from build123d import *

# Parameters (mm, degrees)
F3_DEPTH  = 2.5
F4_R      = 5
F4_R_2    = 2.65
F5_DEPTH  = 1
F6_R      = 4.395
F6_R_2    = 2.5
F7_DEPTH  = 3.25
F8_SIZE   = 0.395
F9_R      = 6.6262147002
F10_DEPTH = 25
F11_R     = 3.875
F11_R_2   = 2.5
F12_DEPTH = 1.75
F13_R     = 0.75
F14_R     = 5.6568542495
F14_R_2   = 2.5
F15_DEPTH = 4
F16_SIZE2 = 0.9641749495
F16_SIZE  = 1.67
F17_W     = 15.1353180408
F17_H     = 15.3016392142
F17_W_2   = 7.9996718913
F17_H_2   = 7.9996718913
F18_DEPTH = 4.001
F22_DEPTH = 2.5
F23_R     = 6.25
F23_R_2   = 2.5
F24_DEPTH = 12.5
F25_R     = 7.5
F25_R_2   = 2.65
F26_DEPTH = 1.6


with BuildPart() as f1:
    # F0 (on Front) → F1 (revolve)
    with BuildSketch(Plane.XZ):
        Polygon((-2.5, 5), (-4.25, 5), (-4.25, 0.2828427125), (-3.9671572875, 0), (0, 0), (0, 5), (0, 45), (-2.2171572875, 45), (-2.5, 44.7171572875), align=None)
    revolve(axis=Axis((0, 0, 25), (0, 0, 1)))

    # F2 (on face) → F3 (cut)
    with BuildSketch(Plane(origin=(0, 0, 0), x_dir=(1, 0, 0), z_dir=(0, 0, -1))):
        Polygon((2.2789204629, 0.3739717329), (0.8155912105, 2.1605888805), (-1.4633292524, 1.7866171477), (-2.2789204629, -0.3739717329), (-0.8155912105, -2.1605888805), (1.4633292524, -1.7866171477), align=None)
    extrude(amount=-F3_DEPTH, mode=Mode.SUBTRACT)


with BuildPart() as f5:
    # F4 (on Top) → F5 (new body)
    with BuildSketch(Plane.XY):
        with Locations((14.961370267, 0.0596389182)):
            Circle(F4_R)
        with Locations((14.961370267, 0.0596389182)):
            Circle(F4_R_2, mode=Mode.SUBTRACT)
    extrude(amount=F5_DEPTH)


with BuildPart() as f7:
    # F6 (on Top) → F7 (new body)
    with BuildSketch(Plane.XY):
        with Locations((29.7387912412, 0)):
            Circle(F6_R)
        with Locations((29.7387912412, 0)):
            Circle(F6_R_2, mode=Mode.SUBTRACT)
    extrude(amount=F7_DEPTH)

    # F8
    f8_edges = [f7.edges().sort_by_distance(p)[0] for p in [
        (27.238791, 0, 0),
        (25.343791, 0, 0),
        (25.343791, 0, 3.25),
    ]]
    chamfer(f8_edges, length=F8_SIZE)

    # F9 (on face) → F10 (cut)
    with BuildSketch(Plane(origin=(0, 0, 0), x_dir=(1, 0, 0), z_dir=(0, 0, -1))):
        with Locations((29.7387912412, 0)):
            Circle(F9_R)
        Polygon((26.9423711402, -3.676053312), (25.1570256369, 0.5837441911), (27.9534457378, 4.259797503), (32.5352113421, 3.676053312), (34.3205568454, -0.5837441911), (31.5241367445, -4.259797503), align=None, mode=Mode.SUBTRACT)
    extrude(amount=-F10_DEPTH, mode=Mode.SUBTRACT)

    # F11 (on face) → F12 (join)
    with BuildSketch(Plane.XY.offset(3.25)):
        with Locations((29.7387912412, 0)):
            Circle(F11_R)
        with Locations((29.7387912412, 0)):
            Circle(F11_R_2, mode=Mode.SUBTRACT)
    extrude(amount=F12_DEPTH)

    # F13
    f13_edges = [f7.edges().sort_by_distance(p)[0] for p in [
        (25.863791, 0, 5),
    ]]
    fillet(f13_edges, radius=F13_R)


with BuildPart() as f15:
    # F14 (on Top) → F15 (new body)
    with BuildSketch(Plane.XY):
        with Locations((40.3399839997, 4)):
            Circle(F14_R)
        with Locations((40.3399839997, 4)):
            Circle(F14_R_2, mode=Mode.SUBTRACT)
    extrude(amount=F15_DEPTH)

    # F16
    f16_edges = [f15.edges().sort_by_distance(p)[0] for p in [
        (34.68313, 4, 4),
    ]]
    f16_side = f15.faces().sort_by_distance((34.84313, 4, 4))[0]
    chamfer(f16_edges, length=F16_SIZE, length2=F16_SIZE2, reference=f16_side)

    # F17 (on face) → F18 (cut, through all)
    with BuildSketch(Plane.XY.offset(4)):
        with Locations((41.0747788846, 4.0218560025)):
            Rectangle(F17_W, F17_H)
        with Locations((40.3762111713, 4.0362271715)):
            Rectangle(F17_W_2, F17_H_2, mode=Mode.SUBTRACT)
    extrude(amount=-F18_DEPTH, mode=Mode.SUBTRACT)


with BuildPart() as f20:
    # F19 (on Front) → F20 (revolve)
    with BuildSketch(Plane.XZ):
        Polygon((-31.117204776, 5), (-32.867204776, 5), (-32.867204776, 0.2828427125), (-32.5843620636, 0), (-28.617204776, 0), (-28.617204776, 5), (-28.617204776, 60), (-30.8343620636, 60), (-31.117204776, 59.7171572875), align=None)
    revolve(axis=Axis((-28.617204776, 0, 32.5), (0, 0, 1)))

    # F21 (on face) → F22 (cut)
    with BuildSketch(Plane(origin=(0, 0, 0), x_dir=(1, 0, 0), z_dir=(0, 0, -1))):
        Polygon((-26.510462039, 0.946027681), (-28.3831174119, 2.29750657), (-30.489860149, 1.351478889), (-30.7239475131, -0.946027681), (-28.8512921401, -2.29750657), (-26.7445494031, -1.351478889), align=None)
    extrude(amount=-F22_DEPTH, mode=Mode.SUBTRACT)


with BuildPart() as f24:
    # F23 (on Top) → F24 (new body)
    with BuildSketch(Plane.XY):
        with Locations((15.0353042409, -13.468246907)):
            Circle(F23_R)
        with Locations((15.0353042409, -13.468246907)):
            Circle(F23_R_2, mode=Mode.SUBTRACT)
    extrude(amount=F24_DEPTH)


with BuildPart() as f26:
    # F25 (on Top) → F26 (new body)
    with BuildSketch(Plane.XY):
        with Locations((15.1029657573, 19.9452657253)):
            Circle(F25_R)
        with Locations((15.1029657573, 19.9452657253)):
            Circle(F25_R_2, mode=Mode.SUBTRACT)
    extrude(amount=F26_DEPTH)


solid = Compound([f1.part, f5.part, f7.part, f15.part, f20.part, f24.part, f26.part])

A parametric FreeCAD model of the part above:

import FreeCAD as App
import Part
import Sketcher
from FreeCAD import Vector
Q = App.Units.Quantity


def edges_at(feature, points):
    """Names of the edges that pass closest to the given points."""
    edges = feature.Shape.Edges
    near = lambda p: min(range(len(edges)), key=lambda i: edges[i].distToShape(Part.Vertex(*p))[0])
    return sorted({f"Edge{near(p) + 1}" for p in points})


def add_polygon(sketch, points):
    """Adds a closed chain of lines whose ends are joined by coincident constraints."""
    first, n = sketch.GeometryCount, len(points)
    for a, b in zip(points, points[1:] + points[:1]):
        sketch.addGeometry(Part.LineSegment(App.Vector(*a, 0), App.Vector(*b, 0)), False)
    for i in range(n):
        sketch.addConstraint(Sketcher.Constraint("Coincident", first + i, 2, first + (i + 1) % n, 1))

doc = App.newDocument("Part")
body = doc.addObject("PartDesign::Body", "Body")

# Sketch on XZ plane
sketch1 = body.newObject("Sketcher::SketchObject", "Sketch")
sketch1.AttachmentSupport = (doc.getObject("XZ_Plane"), [""])
sketch1.MapMode = "FlatFace"
add_polygon(sketch1, [(-2.5, 5), (-4.25, 5), (-4.25, 0.28), (-3.97, 0), (0, 0), (0, 45), (-2.22, 45), (-2.5, 44.72)])  # lines 0-7
sketch1.addConstraint(Sketcher.Constraint("Horizontal", 0))
sketch1.addConstraint(Sketcher.Constraint("Vertical", 1))
sketch1.addConstraint(Sketcher.Constraint("Horizontal", 3))
sketch1.addConstraint(Sketcher.Constraint("Vertical", 4))
sketch1.addConstraint(Sketcher.Constraint("Horizontal", 5))
sketch1.addConstraint(Sketcher.Constraint("Vertical", 7))
sketch1.addConstraint(Sketcher.Constraint("Coincident", 3, 2, -1, 1))
sketch1.addConstraint(Sketcher.Constraint("Perpendicular", 2, 6))
sketch1.addConstraint(Sketcher.Constraint("Equal", 2, 6))
sketch1.addConstraint(Sketcher.Constraint("DistanceY", 4, 1, 4, 2, Q("45 mm")))
sketch1.addConstraint(Sketcher.Constraint("Angle", 2, Q("-45 deg")))
sketch1.addConstraint(Sketcher.Constraint("DistanceY", -1, 1, 0, 2, Q("5 mm")))
sketch1.addConstraint(Sketcher.Constraint("Distance", 2, Q("0.4 mm")))
sketch1.addConstraint(Sketcher.Constraint("DistanceX", 0, 2, 0, 1, Q("1.75 mm")))
sketch1.addConstraint(Sketcher.Constraint("DistanceX", 6, 2, -1, 1, Q("2.5 mm")))
revolution = body.newObject("PartDesign::Revolution", "Revolution")
revolution.Profile = sketch1
revolution.ReferenceAxis = (sketch1, ["V_Axis"])
revolution.Angle = 360

# Sketch on XY plane
sketch2 = body.newObject("Sketcher::SketchObject", "Sketch001")
sketch2.AttachmentSupport = (doc.getObject("XY_Plane"), [""])
sketch2.MapMode = "FlatFace"
add_polygon(sketch2, [(2.3, -0.4), (0.8, -2.2), (-1.5, -1.8), (-2.3, 0.4), (-0.8, 2.2), (1.5, 1.8)])  # lines 0-5
sketch2.addConstraint(Sketcher.Constraint("Symmetric", 0, 2, 3, 2, -1, 1))
sketch2.addConstraint(Sketcher.Constraint("Symmetric", 1, 2, 4, 2, -1, 1))
sketch2.addConstraint(Sketcher.Constraint("Symmetric", 2, 2, 5, 2, -1, 1))
sketch2.addConstraint(Sketcher.Constraint("Equal", 0, 1))
sketch2.addConstraint(Sketcher.Constraint("Equal", 1, 2))
sketch2.addConstraint(Sketcher.Constraint("Distance", 0, Q("2.309401 mm")))
sketch2.addConstraint(Sketcher.Constraint("DistanceX", -1, 1, 0, 2, Q("0.815591 mm")))
sketch2.addConstraint(Sketcher.Constraint("DistanceY", 0, 2, -1, 1, Q("2.160589 mm")))
sketch2.addConstraint(Sketcher.Constraint("DistanceX", 1, 2, -1, 1, Q("1.463329 mm")))
pocket1 = body.newObject("PartDesign::Pocket", "Pocket")
pocket1.Profile = sketch2
pocket1.Length = 2.5
pocket1.Reversed = True
body2 = doc.addObject("PartDesign::Body", "Body001")

# Sketch on XY plane
sketch3 = body2.newObject("Sketcher::SketchObject", "Sketch002")
sketch3.AttachmentSupport = (doc.getObject("XY_Plane001"), [""])
sketch3.MapMode = "FlatFace"
sketch3.addGeometry(Part.Circle(Vector(15, 0.1, 0), Vector(0, 0, 1), 5), False)
sketch3.addGeometry(Part.Circle(Vector(15, 0.1, 0), Vector(0, 0, 1), 2.6), False)
sketch3.addConstraint(Sketcher.Constraint("Coincident", 1, 3, 0, 3))
sketch3.addConstraint(Sketcher.Constraint("Diameter", 0, Q("10 mm")))
sketch3.addConstraint(Sketcher.Constraint("Diameter", 1, Q("5.3 mm")))
sketch3.addConstraint(Sketcher.Constraint("DistanceX", -1, 1, 0, 3, Q("14.96137 mm")))
sketch3.addConstraint(Sketcher.Constraint("DistanceY", -1, 1, 0, 3, Q("0.059639 mm")))
pad1 = body2.newObject("PartDesign::Pad", "Pad")
pad1.Profile = sketch3
pad1.Length = 1
body3 = doc.addObject("PartDesign::Body", "Body002")

# Sketch on XY plane
sketch4 = body3.newObject("Sketcher::SketchObject", "Sketch003")
sketch4.AttachmentSupport = (doc.getObject("XY_Plane002"), [""])
sketch4.MapMode = "FlatFace"
sketch4.addGeometry(Part.Circle(Vector(29.7, 0, 0), Vector(0, 0, 1), 4.4), False)
sketch4.addGeometry(Part.Circle(Vector(29.7, 0, 0), Vector(0, 0, 1), 2.5), False)
sketch4.addConstraint(Sketcher.Constraint("Coincident", 1, 3, 0, 3))
sketch4.addConstraint(Sketcher.Constraint("PointOnObject", 0, 3, -1))
sketch4.addConstraint(Sketcher.Constraint("Diameter", 1, Q("5 mm")))
sketch4.addConstraint(Sketcher.Constraint("Diameter", 0, Q("8.79 mm")))
sketch4.addConstraint(Sketcher.Constraint("DistanceX", -1, 1, 0, 3, Q("29.738791 mm")))
pad2 = body3.newObject("PartDesign::Pad", "Pad001")
pad2.Profile = sketch4
pad2.Length = 3.25
doc.recompute()

chamfer = body3.newObject("PartDesign::Chamfer", "Chamfer")
chamfer.Base = (pad2, edges_at(pad2, [(27.239, 0, 0), (25.344, 0, 0), (25.344, 0, 3.25)]))
chamfer.Size = 0.395

# Sketch on XY plane
sketch5 = body3.newObject("Sketcher::SketchObject", "Sketch004")
sketch5.AttachmentSupport = (doc.getObject("XY_Plane002"), [""])
sketch5.MapMode = "FlatFace"
sketch5.addGeometry(Part.Circle(Vector(29.7, 0, 0), Vector(0, 0, 1), 6.6), False)  # 0
add_polygon(sketch5, [(31.5, 4.3), (26.9, 3.7), (25.2, -0.6), (28, -4.3), (32.5, -3.7), (34.3, 0.6)])  # lines 1-6
sketch5.addConstraint(Sketcher.Constraint("PointOnObject", 0, 3, -1))
sketch5.addConstraint(Sketcher.Constraint("Parallel", 1, 4))
sketch5.addConstraint(Sketcher.Constraint("Parallel", 2, 5))
sketch5.addConstraint(Sketcher.Constraint("Parallel", 3, 6))
sketch5.addConstraint(Sketcher.Constraint("Equal", 1, 2))
sketch5.addConstraint(Sketcher.Constraint("Equal", 2, 3))
sketch5.addConstraint(Sketcher.Constraint("Equal", 3, 4))
sketch5.addConstraint(Sketcher.Constraint("Diameter", 0, Q("13.252429 mm")))
sketch5.addConstraint(Sketcher.Constraint("DistanceX", -1, 1, 0, 3, Q("29.738791 mm")))
sketch5.addConstraint(Sketcher.Constraint("DistanceX", -1, 1, 1, 2, Q("26.942371 mm")))
sketch5.addConstraint(Sketcher.Constraint("DistanceX", -1, 1, 4, 2, Q("32.535211 mm")))
sketch5.addConstraint(Sketcher.Constraint("DistanceX", 2, 2, 3, 2, Q("2.79642 mm")))
sketch5.addConstraint(Sketcher.Constraint("DistanceY", 3, 2, 1, 2, Q("7.935851 mm")))
sketch5.addConstraint(Sketcher.Constraint("DistanceY", 4, 2, 2, 2, Q("3.092309 mm")))
sketch5.addConstraint(Sketcher.Constraint("DistanceY", -1, 1, 1, 2, Q("3.676053 mm")))
pocket2 = body3.newObject("PartDesign::Pocket", "Pocket001")
pocket2.Profile = sketch5
pocket2.Length = 25
pocket2.Reversed = True

# Sketch on XY plane
sketch6 = body3.newObject("Sketcher::SketchObject", "Sketch005")
sketch6.AttachmentSupport = (doc.getObject("XY_Plane002"), [""])
sketch6.MapMode = "FlatFace"
sketch6.AttachmentOffset = App.Placement(Vector(0, 0, 3.25), App.Rotation())
sketch6.addGeometry(Part.Circle(Vector(29.7, 0, 0), Vector(0, 0, 1), 3.9), False)
sketch6.addGeometry(Part.Circle(Vector(29.7, 0, 0), Vector(0, 0, 1), 2.5), False)
sketch6.addConstraint(Sketcher.Constraint("Coincident", 1, 3, 0, 3))
sketch6.addConstraint(Sketcher.Constraint("PointOnObject", 0, 3, -1))
sketch6.addConstraint(Sketcher.Constraint("Diameter", 1, Q("5 mm")))
sketch6.addConstraint(Sketcher.Constraint("Diameter", 0, Q("7.75 mm")))
sketch6.addConstraint(Sketcher.Constraint("DistanceX", -1, 1, 0, 3, Q("29.738791 mm")))
pad3 = body3.newObject("PartDesign::Pad", "Pad002")
pad3.Profile = sketch6
pad3.Length = 1.75
doc.recompute()

fillet = body3.newObject("PartDesign::Fillet", "Fillet")
fillet.Base = (pad3, edges_at(pad3, [(25.864, 0, 5)]))
fillet.Radius = 0.75
body4 = doc.addObject("PartDesign::Body", "Body003")

# Sketch on XY plane
sketch7 = body4.newObject("Sketcher::SketchObject", "Sketch006")
sketch7.AttachmentSupport = (doc.getObject("XY_Plane003"), [""])
sketch7.MapMode = "FlatFace"
sketch7.addGeometry(Part.Circle(Vector(40.3, 4, 0), Vector(0, 0, 1), 5.7), False)
sketch7.addGeometry(Part.Circle(Vector(40.3, 4, 0), Vector(0, 0, 1), 2.5), False)
sketch7.addConstraint(Sketcher.Constraint("Coincident", 1, 3, 0, 3))
sketch7.addConstraint(Sketcher.Constraint("Diameter", 1, Q("5 mm")))
sketch7.addConstraint(Sketcher.Constraint("DistanceY", -1, 1, 0, 3, Q("4 mm")))
sketch7.addConstraint(Sketcher.Constraint("Diameter", 0, Q("11.313709 mm")))
sketch7.addConstraint(Sketcher.Constraint("DistanceX", -1, 1, 0, 3, Q("40.339984 mm")))
pad4 = body4.newObject("PartDesign::Pad", "Pad003")
pad4.Profile = sketch7
pad4.Length = 4
doc.recompute()

chamfer2 = body4.newObject("PartDesign::Chamfer", "Chamfer001")
chamfer2.Base = (pad4, edges_at(pad4, [(34.683, 4, 4)]))
chamfer2.ChamferType = "Two distances"
chamfer2.Size = 1.67
chamfer2.Size2 = 0.964175
chamfer2.FlipDirection = True

# Sketch on XY plane
sketch8 = body4.newObject("Sketcher::SketchObject", "Sketch007")
sketch8.AttachmentSupport = (doc.getObject("XY_Plane003"), [""])
sketch8.MapMode = "FlatFace"
sketch8.AttachmentOffset = App.Placement(Vector(0, 0, 4), App.Rotation())
add_polygon(sketch8, [(34, 12), (34, -4), (49, -4), (49, 12)])  # lines 0-3
add_polygon(sketch8, [(44, 0), (36, 0), (36, 8), (44, 8)])  # lines 4-7
sketch8.addConstraint(Sketcher.Constraint("Vertical", 0))
sketch8.addConstraint(Sketcher.Constraint("Horizontal", 1))
sketch8.addConstraint(Sketcher.Constraint("Vertical", 2))
sketch8.addConstraint(Sketcher.Constraint("Horizontal", 3))
sketch8.addConstraint(Sketcher.Constraint("Horizontal", 4))
sketch8.addConstraint(Sketcher.Constraint("Vertical", 5))
sketch8.addConstraint(Sketcher.Constraint("Horizontal", 6))
sketch8.addConstraint(Sketcher.Constraint("Vertical", 7))
sketch8.addConstraint(Sketcher.Constraint("Equal", 6, 5))
sketch8.addConstraint(Sketcher.Constraint("DistanceX", 1, 1, 1, 2, Q("15.135318 mm")))
sketch8.addConstraint(Sketcher.Constraint("DistanceX", 4, 2, 4, 1, Q("7.999672 mm")))
sketch8.addConstraint(Sketcher.Constraint("DistanceY", 0, 2, 0, 1, Q("15.301639 mm")))
sketch8.addConstraint(Sketcher.Constraint("DistanceX", -1, 1, 0, 2, Q("33.50712 mm")))
sketch8.addConstraint(Sketcher.Constraint("DistanceY", -1, 1, 4, 2, Q("0.036391 mm")))
sketch8.addConstraint(Sketcher.Constraint("DistanceX", 6, 2, 2, 2, Q("4.266391 mm")))
sketch8.addConstraint(Sketcher.Constraint("DistanceY", 0, 2, -1, 1, Q("3.628964 mm")))
pocket3 = body4.newObject("PartDesign::Pocket", "Pocket002")
pocket3.Profile = sketch8
pocket3.Type = "ThroughAll"
body5 = doc.addObject("PartDesign::Body", "Body004")

# Sketch on XZ plane
sketch9 = body5.newObject("Sketcher::SketchObject", "Sketch008")
sketch9.AttachmentSupport = (doc.getObject("XZ_Plane004"), [""])
sketch9.MapMode = "FlatFace"
add_polygon(sketch9, [(-31.12, 5), (-32.87, 5), (-32.87, 0.28), (-32.58, 0), (-28.62, 0), (-28.62, 60), (-30.83, 60), (-31.12, 59.72)])  # lines 0-7
sketch9.addGeometry(Part.LineSegment(Vector(-28.62, 0, 0), Vector(-28.62, 60, 0)), True)  # axis
sketch9.addConstraint(Sketcher.Constraint("Horizontal", 0))
sketch9.addConstraint(Sketcher.Constraint("Vertical", 1))
sketch9.addConstraint(Sketcher.Constraint("Horizontal", 3))
sketch9.addConstraint(Sketcher.Constraint("Vertical", 4))
sketch9.addConstraint(Sketcher.Constraint("Horizontal", 5))
sketch9.addConstraint(Sketcher.Constraint("Vertical", 7))
sketch9.addConstraint(Sketcher.Constraint("Vertical", 8))
sketch9.addConstraint(Sketcher.Constraint("Coincident", 8, 1, 3, 2))
sketch9.addConstraint(Sketcher.Constraint("PointOnObject", 2, 2, -1))
sketch9.addConstraint(Sketcher.Constraint("Perpendicular", 2, 6))
sketch9.addConstraint(Sketcher.Constraint("Horizontal", 5, 2, 8, 2))
sketch9.addConstraint(Sketcher.Constraint("Equal", 2, 6))
sketch9.addConstraint(Sketcher.Constraint("DistanceY", 4, 1, 4, 2, Q("60 mm")))
sketch9.addConstraint(Sketcher.Constraint("Angle", 2, Q("-45 deg")))
sketch9.addConstraint(Sketcher.Constraint("DistanceY", -1, 1, 0, 2, Q("5 mm")))
sketch9.addConstraint(Sketcher.Constraint("Distance", 2, Q("0.4 mm")))
sketch9.addConstraint(Sketcher.Constraint("DistanceX", 0, 2, 0, 1, Q("1.75 mm")))
sketch9.addConstraint(Sketcher.Constraint("DistanceX", 6, 2, 4, 2, Q("2.5 mm")))
sketch9.addConstraint(Sketcher.Constraint("DistanceX", 0, 2, -1, 1, Q("32.867205 mm")))
revolution2 = body5.newObject("PartDesign::Revolution", "Revolution001")
revolution2.Profile = sketch9
revolution2.ReferenceAxis = (sketch9, ["Axis0"])
revolution2.Angle = 360

# Sketch on XY plane
sketch10 = body5.newObject("Sketcher::SketchObject", "Sketch009")
sketch10.AttachmentSupport = (doc.getObject("XY_Plane004"), [""])
sketch10.MapMode = "FlatFace"
add_polygon(sketch10, [(-26.5, -0.9), (-28.4, -2.3), (-30.5, -1.4), (-30.7, 0.9), (-28.9, 2.3), (-26.7, 1.4)])  # lines 0-5
sketch10.addConstraint(Sketcher.Constraint("Parallel", 0, 3))
sketch10.addConstraint(Sketcher.Constraint("Parallel", 1, 4))
sketch10.addConstraint(Sketcher.Constraint("Parallel", 2, 5))
sketch10.addConstraint(Sketcher.Constraint("Equal", 0, 1))
sketch10.addConstraint(Sketcher.Constraint("Equal", 1, 2))
sketch10.addConstraint(Sketcher.Constraint("Equal", 2, 3))
sketch10.addConstraint(Sketcher.Constraint("Distance", 0, Q("2.309401 mm")))
sketch10.addConstraint(Sketcher.Constraint("DistanceX", 2, 2, 4, 2, Q("3.979398 mm")))
sketch10.addConstraint(Sketcher.Constraint("DistanceX", 1, 2, -1, 1, Q("30.48986 mm")))
sketch10.addConstraint(Sketcher.Constraint("DistanceY", 1, 2, -1, 1, Q("1.351479 mm")))
sketch10.addConstraint(Sketcher.Constraint("DistanceX", 4, 2, -1, 1, Q("26.744549 mm")))
sketch10.addConstraint(Sketcher.Constraint("DistanceY", -1, 1, 4, 2, Q("1.351479 mm")))
pocket4 = body5.newObject("PartDesign::Pocket", "Pocket003")
pocket4.Profile = sketch10
pocket4.Length = 2.5
pocket4.Reversed = True
body6 = doc.addObject("PartDesign::Body", "Body005")

# Sketch on XY plane
sketch11 = body6.newObject("Sketcher::SketchObject", "Sketch010")
sketch11.AttachmentSupport = (doc.getObject("XY_Plane005"), [""])
sketch11.MapMode = "FlatFace"
sketch11.addGeometry(Part.Circle(Vector(15, -13.5, 0), Vector(0, 0, 1), 6.2), False)
sketch11.addGeometry(Part.Circle(Vector(15, -13.5, 0), Vector(0, 0, 1), 2.5), False)
sketch11.addConstraint(Sketcher.Constraint("Coincident", 1, 3, 0, 3))
sketch11.addConstraint(Sketcher.Constraint("Diameter", 1, Q("5 mm")))
sketch11.addConstraint(Sketcher.Constraint("Diameter", 0, Q("12.5 mm")))
sketch11.addConstraint(Sketcher.Constraint("DistanceX", -1, 1, 0, 3, Q("15.035304 mm")))
sketch11.addConstraint(Sketcher.Constraint("DistanceY", 0, 3, -1, 1, Q("13.468247 mm")))
pad5 = body6.newObject("PartDesign::Pad", "Pad004")
pad5.Profile = sketch11
pad5.Length = 12.5
body7 = doc.addObject("PartDesign::Body", "Body006")

# Sketch on XY plane
sketch12 = body7.newObject("Sketcher::SketchObject", "Sketch011")
sketch12.AttachmentSupport = (doc.getObject("XY_Plane006"), [""])
sketch12.MapMode = "FlatFace"
sketch12.addGeometry(Part.Circle(Vector(15.1, 19.9, 0), Vector(0, 0, 1), 7.5), False)
sketch12.addGeometry(Part.Circle(Vector(15.1, 19.9, 0), Vector(0, 0, 1), 2.6), False)
sketch12.addConstraint(Sketcher.Constraint("Coincident", 1, 3, 0, 3))
sketch12.addConstraint(Sketcher.Constraint("Diameter", 0, Q("15 mm")))
sketch12.addConstraint(Sketcher.Constraint("Diameter", 1, Q("5.3 mm")))
sketch12.addConstraint(Sketcher.Constraint("DistanceX", -1, 1, 0, 3, Q("15.102966 mm")))
sketch12.addConstraint(Sketcher.Constraint("DistanceY", -1, 1, 0, 3, Q("19.945266 mm")))
pad6 = body7.newObject("PartDesign::Pad", "Pad005")
pad6.Profile = sketch12
pad6.Length = 1.6

doc.recompute()
